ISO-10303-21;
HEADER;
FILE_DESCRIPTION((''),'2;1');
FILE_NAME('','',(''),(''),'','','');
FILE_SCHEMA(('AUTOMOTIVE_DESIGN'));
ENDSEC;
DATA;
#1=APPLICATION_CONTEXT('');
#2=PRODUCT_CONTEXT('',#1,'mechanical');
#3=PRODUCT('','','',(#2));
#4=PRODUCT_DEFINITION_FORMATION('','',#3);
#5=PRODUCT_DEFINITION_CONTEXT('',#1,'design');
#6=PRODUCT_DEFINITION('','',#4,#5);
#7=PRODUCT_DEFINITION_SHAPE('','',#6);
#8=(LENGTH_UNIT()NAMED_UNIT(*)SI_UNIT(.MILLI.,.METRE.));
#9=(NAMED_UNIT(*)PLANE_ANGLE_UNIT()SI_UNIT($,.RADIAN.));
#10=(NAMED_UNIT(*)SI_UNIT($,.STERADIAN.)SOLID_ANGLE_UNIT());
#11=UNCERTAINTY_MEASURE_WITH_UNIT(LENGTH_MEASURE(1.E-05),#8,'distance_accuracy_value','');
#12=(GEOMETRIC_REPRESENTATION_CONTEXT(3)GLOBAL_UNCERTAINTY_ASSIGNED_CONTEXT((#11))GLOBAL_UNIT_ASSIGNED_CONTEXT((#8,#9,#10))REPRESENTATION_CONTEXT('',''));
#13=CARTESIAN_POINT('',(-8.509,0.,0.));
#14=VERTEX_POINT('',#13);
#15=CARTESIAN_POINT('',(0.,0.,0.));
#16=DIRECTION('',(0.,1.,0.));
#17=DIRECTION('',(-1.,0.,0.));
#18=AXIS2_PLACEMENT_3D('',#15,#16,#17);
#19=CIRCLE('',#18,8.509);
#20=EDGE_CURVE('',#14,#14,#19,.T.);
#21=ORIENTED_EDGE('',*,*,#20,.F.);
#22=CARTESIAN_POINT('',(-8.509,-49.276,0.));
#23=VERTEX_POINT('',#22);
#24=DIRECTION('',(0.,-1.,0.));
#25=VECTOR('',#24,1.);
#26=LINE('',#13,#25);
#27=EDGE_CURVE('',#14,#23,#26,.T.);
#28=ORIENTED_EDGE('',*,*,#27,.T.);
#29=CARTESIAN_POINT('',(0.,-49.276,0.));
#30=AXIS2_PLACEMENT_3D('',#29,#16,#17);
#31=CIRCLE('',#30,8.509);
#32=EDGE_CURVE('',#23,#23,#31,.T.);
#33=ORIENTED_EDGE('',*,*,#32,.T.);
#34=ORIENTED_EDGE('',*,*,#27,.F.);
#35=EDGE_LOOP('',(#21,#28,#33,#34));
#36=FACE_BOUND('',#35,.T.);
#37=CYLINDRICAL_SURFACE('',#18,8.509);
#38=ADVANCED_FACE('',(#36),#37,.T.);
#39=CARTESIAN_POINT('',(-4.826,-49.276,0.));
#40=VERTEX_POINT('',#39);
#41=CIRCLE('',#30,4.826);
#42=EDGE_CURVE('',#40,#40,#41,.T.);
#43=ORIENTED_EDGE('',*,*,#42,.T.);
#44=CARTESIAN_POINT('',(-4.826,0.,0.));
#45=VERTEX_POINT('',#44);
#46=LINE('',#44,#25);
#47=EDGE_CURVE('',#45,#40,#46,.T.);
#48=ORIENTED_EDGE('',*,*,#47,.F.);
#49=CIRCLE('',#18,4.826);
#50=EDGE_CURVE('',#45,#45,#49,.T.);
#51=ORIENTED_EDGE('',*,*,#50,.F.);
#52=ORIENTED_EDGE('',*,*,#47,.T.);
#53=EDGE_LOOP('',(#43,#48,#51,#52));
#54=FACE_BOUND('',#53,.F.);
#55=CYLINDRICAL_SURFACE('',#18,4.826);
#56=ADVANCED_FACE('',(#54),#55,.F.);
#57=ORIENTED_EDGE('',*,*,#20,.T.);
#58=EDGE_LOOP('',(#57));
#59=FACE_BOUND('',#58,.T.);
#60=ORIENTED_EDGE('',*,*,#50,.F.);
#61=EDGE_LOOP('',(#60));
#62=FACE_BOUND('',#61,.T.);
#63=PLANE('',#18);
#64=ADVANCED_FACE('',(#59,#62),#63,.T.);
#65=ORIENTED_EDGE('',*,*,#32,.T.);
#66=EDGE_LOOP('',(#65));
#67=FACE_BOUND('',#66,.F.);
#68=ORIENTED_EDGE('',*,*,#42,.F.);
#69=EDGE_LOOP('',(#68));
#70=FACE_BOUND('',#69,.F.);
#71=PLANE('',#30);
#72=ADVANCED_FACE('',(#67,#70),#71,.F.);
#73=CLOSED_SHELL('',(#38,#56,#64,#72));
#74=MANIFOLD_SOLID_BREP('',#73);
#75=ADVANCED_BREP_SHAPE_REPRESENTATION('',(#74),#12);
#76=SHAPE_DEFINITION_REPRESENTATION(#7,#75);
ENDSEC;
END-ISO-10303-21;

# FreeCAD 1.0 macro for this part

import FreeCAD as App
import Part
import Sketcher
from FreeCAD import Vector
Q = App.Units.Quantity

doc = App.newDocument("Part")
body = doc.addObject("PartDesign::Body", "Body")

# Sketch on XZ plane
sketch1 = body.newObject("Sketcher::SketchObject", "Sketch")
sketch1.AttachmentSupport = (doc.getObject("XZ_Plane"), [""])
sketch1.MapMode = "FlatFace"
sketch1.addGeometry([
    Part.Circle(Vector(0, 0, 0), Vector(0, 0, 1), 8.5),
    Part.Circle(Vector(0, 0, 0), Vector(0, 0, 1), 4.8),
], False)
sketch1.addConstraint([
    Sketcher.Constraint("Coincident", 0, 3, -1, 1),
    Sketcher.Constraint("Coincident", 1, 3, -1, 1),
    Sketcher.Constraint("Diameter", 0, Q("0.67 in")),
    Sketcher.Constraint("Diameter", 1, Q("0.38 in")),
])
pad1 = body.newObject("PartDesign::Pad", "Pad")
pad1.Profile = sketch1
pad1.Length = Q("1.94 in")

doc.recompute()
